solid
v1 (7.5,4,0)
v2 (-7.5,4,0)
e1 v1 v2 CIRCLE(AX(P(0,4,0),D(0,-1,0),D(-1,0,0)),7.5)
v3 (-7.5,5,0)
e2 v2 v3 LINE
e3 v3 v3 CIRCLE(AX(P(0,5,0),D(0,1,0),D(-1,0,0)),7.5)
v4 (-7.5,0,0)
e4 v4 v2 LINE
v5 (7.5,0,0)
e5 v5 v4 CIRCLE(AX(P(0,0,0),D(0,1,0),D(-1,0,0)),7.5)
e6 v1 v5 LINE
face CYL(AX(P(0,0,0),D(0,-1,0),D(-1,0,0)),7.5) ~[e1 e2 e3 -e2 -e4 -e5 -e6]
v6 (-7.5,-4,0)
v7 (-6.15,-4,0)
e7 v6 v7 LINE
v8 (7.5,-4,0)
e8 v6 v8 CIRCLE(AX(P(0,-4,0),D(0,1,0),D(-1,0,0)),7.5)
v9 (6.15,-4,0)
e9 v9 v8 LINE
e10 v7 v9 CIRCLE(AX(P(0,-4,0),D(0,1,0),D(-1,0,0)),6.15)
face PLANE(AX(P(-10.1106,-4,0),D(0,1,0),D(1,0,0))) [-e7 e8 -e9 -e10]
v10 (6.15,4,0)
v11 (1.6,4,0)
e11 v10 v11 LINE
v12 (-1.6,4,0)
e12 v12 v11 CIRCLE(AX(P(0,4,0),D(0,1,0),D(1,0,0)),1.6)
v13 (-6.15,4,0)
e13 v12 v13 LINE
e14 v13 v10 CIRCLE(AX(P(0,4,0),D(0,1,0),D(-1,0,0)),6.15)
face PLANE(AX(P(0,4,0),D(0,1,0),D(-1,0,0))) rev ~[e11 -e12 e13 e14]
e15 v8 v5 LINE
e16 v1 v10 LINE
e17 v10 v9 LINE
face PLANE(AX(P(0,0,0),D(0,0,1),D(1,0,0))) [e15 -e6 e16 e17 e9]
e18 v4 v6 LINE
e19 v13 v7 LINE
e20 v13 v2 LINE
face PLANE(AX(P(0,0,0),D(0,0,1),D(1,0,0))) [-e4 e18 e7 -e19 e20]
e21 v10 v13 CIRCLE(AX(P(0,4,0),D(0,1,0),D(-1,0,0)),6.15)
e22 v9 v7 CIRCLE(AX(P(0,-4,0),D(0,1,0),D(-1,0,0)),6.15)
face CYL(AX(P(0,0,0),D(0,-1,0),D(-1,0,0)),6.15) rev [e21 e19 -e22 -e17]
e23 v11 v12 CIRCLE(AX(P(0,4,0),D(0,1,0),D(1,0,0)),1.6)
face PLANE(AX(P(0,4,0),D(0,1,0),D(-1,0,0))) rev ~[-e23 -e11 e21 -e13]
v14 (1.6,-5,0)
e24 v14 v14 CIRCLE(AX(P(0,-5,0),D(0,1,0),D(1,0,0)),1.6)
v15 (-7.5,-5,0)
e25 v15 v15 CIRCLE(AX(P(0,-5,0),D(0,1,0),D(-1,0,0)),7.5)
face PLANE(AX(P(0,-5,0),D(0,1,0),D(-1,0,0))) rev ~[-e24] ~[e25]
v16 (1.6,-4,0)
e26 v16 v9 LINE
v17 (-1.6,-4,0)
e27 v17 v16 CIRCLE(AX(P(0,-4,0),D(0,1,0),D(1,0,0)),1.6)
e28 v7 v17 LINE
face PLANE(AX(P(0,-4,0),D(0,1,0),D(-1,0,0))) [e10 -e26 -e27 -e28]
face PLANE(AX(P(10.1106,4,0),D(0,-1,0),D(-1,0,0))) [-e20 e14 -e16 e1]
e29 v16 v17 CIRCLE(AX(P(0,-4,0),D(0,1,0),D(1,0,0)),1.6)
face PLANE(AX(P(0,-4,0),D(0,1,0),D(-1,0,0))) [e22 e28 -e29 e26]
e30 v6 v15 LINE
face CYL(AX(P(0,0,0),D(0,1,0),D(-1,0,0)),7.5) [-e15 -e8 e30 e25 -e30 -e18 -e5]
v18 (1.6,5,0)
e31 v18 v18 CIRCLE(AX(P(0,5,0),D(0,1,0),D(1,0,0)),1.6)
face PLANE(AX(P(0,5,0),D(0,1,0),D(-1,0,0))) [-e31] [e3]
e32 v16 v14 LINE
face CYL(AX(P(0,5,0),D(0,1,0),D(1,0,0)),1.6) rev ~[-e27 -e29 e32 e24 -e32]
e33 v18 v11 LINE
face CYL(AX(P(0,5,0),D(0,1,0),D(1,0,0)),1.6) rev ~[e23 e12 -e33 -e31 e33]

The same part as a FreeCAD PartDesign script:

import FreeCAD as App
import Part
import Sketcher


def add_polygon(sketch, points):
    """Adds a closed chain of lines whose ends are joined by coincident constraints."""
    first, n = sketch.GeometryCount, len(points)
    for a, b in zip(points, points[1:] + points[:1]):
        sketch.addGeometry(Part.LineSegment(App.Vector(*a, 0), App.Vector(*b, 0)), False)
    for i in range(n):
        sketch.addConstraint(Sketcher.Constraint("Coincident", first + i, 2, first + (i + 1) % n, 1))

doc = App.newDocument("Part")
body = doc.addObject("PartDesign::Body", "Body")

# Sketch on XZ plane
sketch1 = doc.addObject("Sketcher::SketchObject", "Sketch")
body.addObject(sketch1)
sketch1.AttachmentSupport = (doc.XZ_Plane, [""])
sketch1.MapMode = "FlatFace"
sketch1.addGeometry(Part.Circle(App.Vector(0, 0, 0), App.Vector(0, 0, 1), 8), False)
sketch1.addConstraint([
    Sketcher.Constraint("Coincident", 0, 3, -1, 1),
    Sketcher.Constraint("Diameter", 0, 15.0),
])
pad1 = doc.addObject("PartDesign::Pad", "Pad")
body.addObject(pad1)
pad1.Profile = sketch1
pad1.Length = 10
pad1.Midplane = True

# Sketch on XZ plane
sketch2 = doc.addObject("Sketcher::SketchObject", "Sketch001")
body.addObject(sketch2)
sketch2.AttachmentSupport = (doc.XZ_Plane, [""])
sketch2.MapMode = "FlatFace"
sketch2.addGeometry(Part.Circle(App.Vector(0, 0, 0), App.Vector(0, 0, 1), 6), False)
sketch2.addConstraint([
    Sketcher.Constraint("Coincident", 0, 3, -1, 1),
    Sketcher.Constraint("Diameter", 0, 12.3),
])
pocket1 = doc.addObject("PartDesign::Pocket", "Pocket")
body.addObject(pocket1)
pocket1.Profile = sketch2
pocket1.Length = 8
pocket1.Midplane = True

# Sketch on XZ plane
sketch3 = doc.addObject("Sketcher::SketchObject", "Sketch002")
body.addObject(sketch3)
sketch3.AttachmentSupport = (doc.XZ_Plane, [""])
sketch3.MapMode = "FlatFace"
sketch3.AttachmentOffset = App.Placement(App.Vector(0, 0, -5), App.Rotation())
sketch3.addGeometry(Part.Circle(App.Vector(0, 0, 0), App.Vector(0, 0, 1), 1.6), False)
sketch3.addConstraint([
    Sketcher.Constraint("Coincident", 0, 3, -1, 1),
    Sketcher.Constraint("Diameter", 0, 3.2),
])
pocket2 = doc.addObject("PartDesign::Pocket", "Pocket001")
body.addObject(pocket2)
pocket2.Profile = sketch3
pocket2.Type = "ThroughAll"
pocket2.Reversed = True

# Sketch on XY plane
sketch4 = doc.addObject("Sketcher::SketchObject", "Sketch003")
body.addObject(sketch4)
sketch4.AttachmentSupport = (doc.XY_Plane, [""])
sketch4.MapMode = "FlatFace"
add_polygon(sketch4, [(-10, 4), (-10, -4), (10, -4), (10, 4)])  # lines 0-3
sketch4.addConstraint([
    Sketcher.Constraint("Vertical", 0),
    Sketcher.Constraint("Horizontal", 1),
    Sketcher.Constraint("Vertical", 2),
    Sketcher.Constraint("Horizontal", 3),
    Sketcher.Constraint("Symmetric", 0, 2, 2, 2, -1, 1),
    Sketcher.Constraint("DistanceY", 0, 2, 0, 1, 8.0),
    Sketcher.Constraint("DistanceX", 1, 1, 1, 2, 20.2212),
])
pocket3 = doc.addObject("PartDesign::Pocket", "Pocket002")
body.addObject(pocket3)
pocket3.Profile = sketch4
pocket3.Type = "ThroughAll"
pocket3.Reversed = True

doc.recompute()
